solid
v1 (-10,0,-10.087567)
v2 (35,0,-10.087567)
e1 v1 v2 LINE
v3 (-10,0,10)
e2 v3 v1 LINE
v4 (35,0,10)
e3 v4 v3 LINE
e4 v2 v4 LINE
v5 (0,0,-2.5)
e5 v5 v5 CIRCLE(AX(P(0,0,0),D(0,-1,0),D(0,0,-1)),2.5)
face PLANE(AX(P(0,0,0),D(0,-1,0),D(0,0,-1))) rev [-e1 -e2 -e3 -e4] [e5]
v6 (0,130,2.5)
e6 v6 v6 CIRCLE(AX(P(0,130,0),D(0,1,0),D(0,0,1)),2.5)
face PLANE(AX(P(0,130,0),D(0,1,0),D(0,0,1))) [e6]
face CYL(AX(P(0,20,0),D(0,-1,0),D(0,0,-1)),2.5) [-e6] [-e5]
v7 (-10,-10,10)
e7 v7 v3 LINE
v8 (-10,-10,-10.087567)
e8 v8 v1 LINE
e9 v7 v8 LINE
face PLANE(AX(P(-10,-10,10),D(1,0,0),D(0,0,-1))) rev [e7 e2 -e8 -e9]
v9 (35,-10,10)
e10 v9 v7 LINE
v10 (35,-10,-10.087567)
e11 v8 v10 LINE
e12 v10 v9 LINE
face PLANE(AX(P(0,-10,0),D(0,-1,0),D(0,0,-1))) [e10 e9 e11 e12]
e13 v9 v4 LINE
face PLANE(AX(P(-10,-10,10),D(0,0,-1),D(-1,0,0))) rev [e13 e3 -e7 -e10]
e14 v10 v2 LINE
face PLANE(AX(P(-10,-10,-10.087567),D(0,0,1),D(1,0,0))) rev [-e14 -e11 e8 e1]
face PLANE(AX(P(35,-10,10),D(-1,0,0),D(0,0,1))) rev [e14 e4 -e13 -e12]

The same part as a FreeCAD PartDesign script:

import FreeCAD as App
import Part
import Sketcher
from FreeCAD import Vector

doc = App.newDocument("Part")
body = doc.addObject("PartDesign::Body", "Body")

sketch1 = body.newObject("Sketcher::SketchObject", "Sketch")
sketch1.AttachmentSupport = (doc.getObject("XZ_Plane"), [""])
sketch1.MapMode = "FlatFace"
sketch1.addGeometry(Part.Circle(Vector(0, 0, 0), Vector(0, 0, 1), 2.5), False)
sketch1.addConstraint([
    Sketcher.Constraint("Coincident", 0, 3, -1, 1),
    Sketcher.Constraint("Diameter", 0, 5.0),
])
pad1 = body.newObject("PartDesign::Pad", "Pad")
pad1.Profile = sketch1
pad1.Length = 20
pad1.Reversed = True

sketch2 = body.newObject("Sketcher::SketchObject", "Sketch001")
sketch2.AttachmentSupport = (doc.getObject("XZ_Plane"), [""])
sketch2.MapMode = "FlatFace"
sketch2.addGeometry([
    Part.LineSegment(Vector(-10, 10, 0), Vector(-10, -10, 0)),
    Part.LineSegment(Vector(-10, -10, 0), Vector(35, -10, 0)),
    Part.LineSegment(Vector(35, -10, 0), Vector(35, 10, 0)),
    Part.LineSegment(Vector(35, 10, 0), Vector(-10, 10, 0)),
], False)
sketch2.addConstraint([
    Sketcher.Constraint("Coincident", 0, 2, 1, 1),
    Sketcher.Constraint("Coincident", 1, 2, 2, 1),
    Sketcher.Constraint("Coincident", 2, 2, 3, 1),
    Sketcher.Constraint("Coincident", 3, 2, 0, 1),
    Sketcher.Constraint("Vertical", 0),
    Sketcher.Constraint("Horizontal", 1),
    Sketcher.Constraint("Vertical", 2),
    Sketcher.Constraint("Horizontal", 3),
    Sketcher.Constraint("DistanceX", 1, 1, 1, 2, 45.0),
    Sketcher.Constraint("DistanceX", 0, 2, -1, 1, 10.0),
    Sketcher.Constraint("DistanceY", -1, 1, 2, 2, 10.0),
    Sketcher.Constraint("DistanceY", 0, 2, 0, 1, 20.087567),
])
pad2 = body.newObject("PartDesign::Pad", "Pad001")
pad2.Profile = sketch2
pad2.Length = 10

sketch3 = body.newObject("Sketcher::SketchObject", "Sketch002")
sketch3.AttachmentSupport = (doc.getObject("XZ_Plane"), [""])
sketch3.MapMode = "FlatFace"
sketch3.AttachmentOffset = App.Placement(Vector(0, 0, -20), App.Rotation())
sketch3.addGeometry(Part.Circle(Vector(0, 0, 0), Vector(0, 0, 1), 2.5), False)
sketch3.addConstraint([
    Sketcher.Constraint("Coincident", 0, 3, -1, 1),
    Sketcher.Constraint("Diameter", 0, 5.0),
])
pad3 = body.newObject("PartDesign::Pad", "Pad002")
pad3.Profile = sketch3
pad3.Length = 110
pad3.Reversed = True

doc.recompute()
